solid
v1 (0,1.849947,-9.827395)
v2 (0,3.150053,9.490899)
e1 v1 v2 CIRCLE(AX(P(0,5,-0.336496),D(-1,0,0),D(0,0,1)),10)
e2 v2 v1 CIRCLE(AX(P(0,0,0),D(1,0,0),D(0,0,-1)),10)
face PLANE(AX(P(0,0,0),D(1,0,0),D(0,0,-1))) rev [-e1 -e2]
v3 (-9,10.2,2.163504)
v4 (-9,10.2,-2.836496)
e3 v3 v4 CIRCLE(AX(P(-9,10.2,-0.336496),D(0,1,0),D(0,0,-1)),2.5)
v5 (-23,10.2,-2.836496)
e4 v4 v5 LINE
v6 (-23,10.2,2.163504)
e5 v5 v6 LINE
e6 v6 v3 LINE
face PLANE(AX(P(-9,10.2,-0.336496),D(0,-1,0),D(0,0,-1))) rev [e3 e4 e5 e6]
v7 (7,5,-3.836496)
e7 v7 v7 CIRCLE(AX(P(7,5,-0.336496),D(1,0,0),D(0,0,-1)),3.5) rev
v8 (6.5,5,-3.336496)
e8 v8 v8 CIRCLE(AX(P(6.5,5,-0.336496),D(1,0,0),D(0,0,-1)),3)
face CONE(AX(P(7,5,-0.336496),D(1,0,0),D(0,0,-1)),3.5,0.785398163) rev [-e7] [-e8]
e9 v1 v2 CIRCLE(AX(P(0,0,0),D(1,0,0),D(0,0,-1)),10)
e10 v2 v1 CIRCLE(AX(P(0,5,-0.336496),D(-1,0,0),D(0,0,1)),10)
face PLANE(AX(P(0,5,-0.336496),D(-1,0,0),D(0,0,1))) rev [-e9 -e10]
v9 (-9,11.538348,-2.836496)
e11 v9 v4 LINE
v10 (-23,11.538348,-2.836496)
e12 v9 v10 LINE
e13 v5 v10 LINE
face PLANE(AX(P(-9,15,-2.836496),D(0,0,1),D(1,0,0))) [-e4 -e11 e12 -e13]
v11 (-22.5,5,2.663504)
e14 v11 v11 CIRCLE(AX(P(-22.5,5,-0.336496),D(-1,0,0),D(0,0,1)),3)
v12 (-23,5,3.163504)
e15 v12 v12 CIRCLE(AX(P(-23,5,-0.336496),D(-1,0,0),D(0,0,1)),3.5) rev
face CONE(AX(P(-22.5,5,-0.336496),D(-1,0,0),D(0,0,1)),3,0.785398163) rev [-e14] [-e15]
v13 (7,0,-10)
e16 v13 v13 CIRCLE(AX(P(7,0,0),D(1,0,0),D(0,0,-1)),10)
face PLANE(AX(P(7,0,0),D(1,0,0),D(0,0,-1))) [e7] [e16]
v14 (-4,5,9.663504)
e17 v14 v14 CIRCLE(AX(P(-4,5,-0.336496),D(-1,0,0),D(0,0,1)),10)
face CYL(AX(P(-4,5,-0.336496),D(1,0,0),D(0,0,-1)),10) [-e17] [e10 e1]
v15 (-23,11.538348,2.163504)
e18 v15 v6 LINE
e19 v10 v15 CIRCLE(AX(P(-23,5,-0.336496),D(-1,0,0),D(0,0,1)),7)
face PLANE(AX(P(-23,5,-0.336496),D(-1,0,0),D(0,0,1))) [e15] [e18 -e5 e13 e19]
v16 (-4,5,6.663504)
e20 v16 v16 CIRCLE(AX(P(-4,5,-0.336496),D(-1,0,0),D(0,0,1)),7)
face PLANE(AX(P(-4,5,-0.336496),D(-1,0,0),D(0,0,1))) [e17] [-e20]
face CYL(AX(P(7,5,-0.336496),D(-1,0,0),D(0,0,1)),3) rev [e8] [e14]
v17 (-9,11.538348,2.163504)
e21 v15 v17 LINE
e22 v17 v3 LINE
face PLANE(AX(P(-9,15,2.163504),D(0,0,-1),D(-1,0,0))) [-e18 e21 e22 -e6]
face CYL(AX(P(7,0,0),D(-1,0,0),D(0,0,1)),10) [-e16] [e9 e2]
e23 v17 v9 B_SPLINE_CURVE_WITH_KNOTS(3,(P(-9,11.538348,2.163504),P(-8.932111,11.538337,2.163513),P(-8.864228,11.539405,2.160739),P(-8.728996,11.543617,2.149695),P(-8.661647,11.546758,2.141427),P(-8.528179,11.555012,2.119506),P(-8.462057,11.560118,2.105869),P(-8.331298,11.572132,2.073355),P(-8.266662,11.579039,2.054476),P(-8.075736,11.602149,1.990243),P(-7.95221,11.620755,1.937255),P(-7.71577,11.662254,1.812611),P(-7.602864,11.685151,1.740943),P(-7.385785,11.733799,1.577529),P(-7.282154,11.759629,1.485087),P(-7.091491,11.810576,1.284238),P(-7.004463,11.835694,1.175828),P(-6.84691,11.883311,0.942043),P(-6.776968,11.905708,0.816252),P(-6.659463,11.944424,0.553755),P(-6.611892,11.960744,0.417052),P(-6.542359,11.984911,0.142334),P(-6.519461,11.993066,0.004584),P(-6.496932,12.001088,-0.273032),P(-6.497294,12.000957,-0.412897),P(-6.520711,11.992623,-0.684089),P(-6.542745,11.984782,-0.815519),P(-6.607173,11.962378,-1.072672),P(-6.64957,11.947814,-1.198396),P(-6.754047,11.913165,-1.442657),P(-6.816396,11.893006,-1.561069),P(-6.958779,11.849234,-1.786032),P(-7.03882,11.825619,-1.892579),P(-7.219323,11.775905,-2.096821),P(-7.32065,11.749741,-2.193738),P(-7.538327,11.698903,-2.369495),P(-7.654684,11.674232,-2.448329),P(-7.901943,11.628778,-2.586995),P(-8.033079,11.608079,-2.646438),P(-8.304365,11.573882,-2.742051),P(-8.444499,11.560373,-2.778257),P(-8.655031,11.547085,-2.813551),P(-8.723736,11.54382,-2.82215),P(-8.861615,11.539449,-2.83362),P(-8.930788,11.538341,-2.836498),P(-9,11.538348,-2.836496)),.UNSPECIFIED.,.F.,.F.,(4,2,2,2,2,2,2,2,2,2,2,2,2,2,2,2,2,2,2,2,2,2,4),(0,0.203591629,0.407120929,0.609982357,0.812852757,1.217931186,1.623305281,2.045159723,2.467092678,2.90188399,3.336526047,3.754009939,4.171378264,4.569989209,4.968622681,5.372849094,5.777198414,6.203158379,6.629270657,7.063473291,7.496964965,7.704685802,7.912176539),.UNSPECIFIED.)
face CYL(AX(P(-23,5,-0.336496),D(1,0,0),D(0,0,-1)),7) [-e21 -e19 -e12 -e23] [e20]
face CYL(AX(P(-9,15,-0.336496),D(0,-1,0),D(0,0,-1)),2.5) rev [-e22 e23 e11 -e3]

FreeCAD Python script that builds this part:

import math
import FreeCAD as App
import Part
import Sketcher

V = App.Vector
Q = App.Units.Quantity


def edges_at(feature, points):
    """Names of the edges that pass closest to the given points."""
    edges = feature.Shape.Edges
    near = lambda p: min(range(len(edges)), key=lambda i: edges[i].distToShape(Part.Vertex(*p))[0])
    return sorted({f"Edge{near(p) + 1}" for p in points})

doc = App.newDocument("Part")
body = doc.addObject("PartDesign::Body", "Body")

sketch1 = body.newObject("Sketcher::SketchObject", "Sketch")
sketch1.AttachmentSupport = (doc.getObject("YZ_Plane"), [""])
sketch1.MapMode = "FlatFace"
sketch1.addGeometry(Part.Circle(V(0, 0, 0), V(0, 0, 1), 10), False)
sketch1.addConstraint([
    Sketcher.Constraint("Coincident", 0, 3, -1, 1),
    Sketcher.Constraint("Diameter", 0, Q("20 mm")),
])
pad1 = body.newObject("PartDesign::Pad", "Pad")
pad1.Profile = sketch1
pad1.Length = 7

sketch2 = body.newObject("Sketcher::SketchObject", "Sketch001")
sketch2.AttachmentSupport = (doc.getObject("YZ_Plane"), [""])
sketch2.MapMode = "FlatFace"
sketch2.addGeometry(Part.Circle(V(5, 0, 0), V(0, 0, 1), 10), False)
sketch2.addConstraint([
    Sketcher.Constraint("Diameter", 0, Q("20 mm")),
    Sketcher.Constraint("DistanceX", -1, 1, 0, 3, Q("5 mm")),
    Sketcher.Constraint("DistanceY", 0, 3, -1, 1, Q("0.336496 mm")),
])
pad2 = body.newObject("PartDesign::Pad", "Pad001")
pad2.Profile = sketch2
pad2.Length = 4
pad2.Reversed = True

sketch3 = body.newObject("Sketcher::SketchObject", "Sketch002")
sketch3.AttachmentSupport = (doc.getObject("YZ_Plane"), [""])
sketch3.MapMode = "FlatFace"
sketch3.AttachmentOffset = App.Placement(V(0, 0, -4), App.Rotation())
sketch3.addGeometry(Part.Circle(V(5, 0, 0), V(0, 0, 1), 7), False)
sketch3.addConstraint([
    Sketcher.Constraint("Diameter", 0, Q("14 mm")),
    Sketcher.Constraint("DistanceX", -1, 1, 0, 3, Q("5 mm")),
    Sketcher.Constraint("DistanceY", 0, 3, -1, 1, Q("0.336496 mm")),
])
pad3 = body.newObject("PartDesign::Pad", "Pad002")
pad3.Profile = sketch3
pad3.Length = 19
pad3.Reversed = True

sketch4 = body.newObject("Sketcher::SketchObject", "Sketch003")
sketch4.AttachmentSupport = (doc.getObject("YZ_Plane"), [""])
sketch4.MapMode = "FlatFace"
sketch4.AttachmentOffset = App.Placement(V(0, 0, -23), App.Rotation())
sketch4.addGeometry(Part.Circle(V(5, -0.3, 0), V(0, 0, 1), 3), False)
sketch4.addConstraint([
    Sketcher.Constraint("Diameter", 0, Q("6 mm")),
    Sketcher.Constraint("DistanceX", -1, 1, 0, 3, Q("5 mm")),
    Sketcher.Constraint("DistanceY", 0, 3, -1, 1, Q("0.336496 mm")),
])
pocket1 = body.newObject("PartDesign::Pocket", "Pocket")
pocket1.Profile = sketch4
pocket1.Type = "ThroughAll"
pocket1.Reversed = True
doc.recompute()

chamfer = body.newObject("PartDesign::Chamfer", "Chamfer")
chamfer.Base = (pocket1, edges_at(pocket1, [(7, 5, -3.336), (-23, 5, -3.336)]))
chamfer.Size = 0.5

sketch5 = body.newObject("Sketcher::SketchObject", "Sketch004")
sketch5.AttachmentSupport = (doc.getObject("XZ_Plane"), [""])
sketch5.MapMode = "FlatFace"
sketch5.AttachmentOffset = App.Placement(V(0, 0, -10.2), App.Rotation())
sketch5.addGeometry([
    Part.LineSegment(V(-9, -2.8, 0), V(-27, -2.8, 0)),
    Part.LineSegment(V(-27, -2.8, 0), V(-27, 2.2, 0)),
    Part.LineSegment(V(-27, 2.2, 0), V(-9, 2.2, 0)),
    Part.ArcOfCircle(Part.Circle(V(-9, -0.3, 0), V(0, 0, 1), 2.5), math.radians(-90), math.radians(90)),
], False)
sketch5.addConstraint([
    Sketcher.Constraint("Coincident", 0, 2, 1, 1),
    Sketcher.Constraint("Coincident", 1, 2, 2, 1),
    Sketcher.Constraint("Tangent", 2, 2, 3, 2),
    Sketcher.Constraint("Tangent", 3, 1, 0, 1),
    Sketcher.Constraint("Horizontal", 0),
    Sketcher.Constraint("Vertical", 1),
    Sketcher.Constraint("Horizontal", 2),
    Sketcher.Constraint("Radius", 3, Q("2.5 mm")),
    Sketcher.Constraint("DistanceX", 3, 3, -1, 1, Q("9 mm")),
    Sketcher.Constraint("DistanceX", 0, 2, 0, 1, Q("17.986787 mm")),
    Sketcher.Constraint("DistanceY", 3, 3, -1, 1, Q("0.336496 mm")),
])
pocket2 = body.newObject("PartDesign::Pocket", "Pocket001")
pocket2.Profile = sketch5
pocket2.Type = "ThroughAll"

doc.recompute()
